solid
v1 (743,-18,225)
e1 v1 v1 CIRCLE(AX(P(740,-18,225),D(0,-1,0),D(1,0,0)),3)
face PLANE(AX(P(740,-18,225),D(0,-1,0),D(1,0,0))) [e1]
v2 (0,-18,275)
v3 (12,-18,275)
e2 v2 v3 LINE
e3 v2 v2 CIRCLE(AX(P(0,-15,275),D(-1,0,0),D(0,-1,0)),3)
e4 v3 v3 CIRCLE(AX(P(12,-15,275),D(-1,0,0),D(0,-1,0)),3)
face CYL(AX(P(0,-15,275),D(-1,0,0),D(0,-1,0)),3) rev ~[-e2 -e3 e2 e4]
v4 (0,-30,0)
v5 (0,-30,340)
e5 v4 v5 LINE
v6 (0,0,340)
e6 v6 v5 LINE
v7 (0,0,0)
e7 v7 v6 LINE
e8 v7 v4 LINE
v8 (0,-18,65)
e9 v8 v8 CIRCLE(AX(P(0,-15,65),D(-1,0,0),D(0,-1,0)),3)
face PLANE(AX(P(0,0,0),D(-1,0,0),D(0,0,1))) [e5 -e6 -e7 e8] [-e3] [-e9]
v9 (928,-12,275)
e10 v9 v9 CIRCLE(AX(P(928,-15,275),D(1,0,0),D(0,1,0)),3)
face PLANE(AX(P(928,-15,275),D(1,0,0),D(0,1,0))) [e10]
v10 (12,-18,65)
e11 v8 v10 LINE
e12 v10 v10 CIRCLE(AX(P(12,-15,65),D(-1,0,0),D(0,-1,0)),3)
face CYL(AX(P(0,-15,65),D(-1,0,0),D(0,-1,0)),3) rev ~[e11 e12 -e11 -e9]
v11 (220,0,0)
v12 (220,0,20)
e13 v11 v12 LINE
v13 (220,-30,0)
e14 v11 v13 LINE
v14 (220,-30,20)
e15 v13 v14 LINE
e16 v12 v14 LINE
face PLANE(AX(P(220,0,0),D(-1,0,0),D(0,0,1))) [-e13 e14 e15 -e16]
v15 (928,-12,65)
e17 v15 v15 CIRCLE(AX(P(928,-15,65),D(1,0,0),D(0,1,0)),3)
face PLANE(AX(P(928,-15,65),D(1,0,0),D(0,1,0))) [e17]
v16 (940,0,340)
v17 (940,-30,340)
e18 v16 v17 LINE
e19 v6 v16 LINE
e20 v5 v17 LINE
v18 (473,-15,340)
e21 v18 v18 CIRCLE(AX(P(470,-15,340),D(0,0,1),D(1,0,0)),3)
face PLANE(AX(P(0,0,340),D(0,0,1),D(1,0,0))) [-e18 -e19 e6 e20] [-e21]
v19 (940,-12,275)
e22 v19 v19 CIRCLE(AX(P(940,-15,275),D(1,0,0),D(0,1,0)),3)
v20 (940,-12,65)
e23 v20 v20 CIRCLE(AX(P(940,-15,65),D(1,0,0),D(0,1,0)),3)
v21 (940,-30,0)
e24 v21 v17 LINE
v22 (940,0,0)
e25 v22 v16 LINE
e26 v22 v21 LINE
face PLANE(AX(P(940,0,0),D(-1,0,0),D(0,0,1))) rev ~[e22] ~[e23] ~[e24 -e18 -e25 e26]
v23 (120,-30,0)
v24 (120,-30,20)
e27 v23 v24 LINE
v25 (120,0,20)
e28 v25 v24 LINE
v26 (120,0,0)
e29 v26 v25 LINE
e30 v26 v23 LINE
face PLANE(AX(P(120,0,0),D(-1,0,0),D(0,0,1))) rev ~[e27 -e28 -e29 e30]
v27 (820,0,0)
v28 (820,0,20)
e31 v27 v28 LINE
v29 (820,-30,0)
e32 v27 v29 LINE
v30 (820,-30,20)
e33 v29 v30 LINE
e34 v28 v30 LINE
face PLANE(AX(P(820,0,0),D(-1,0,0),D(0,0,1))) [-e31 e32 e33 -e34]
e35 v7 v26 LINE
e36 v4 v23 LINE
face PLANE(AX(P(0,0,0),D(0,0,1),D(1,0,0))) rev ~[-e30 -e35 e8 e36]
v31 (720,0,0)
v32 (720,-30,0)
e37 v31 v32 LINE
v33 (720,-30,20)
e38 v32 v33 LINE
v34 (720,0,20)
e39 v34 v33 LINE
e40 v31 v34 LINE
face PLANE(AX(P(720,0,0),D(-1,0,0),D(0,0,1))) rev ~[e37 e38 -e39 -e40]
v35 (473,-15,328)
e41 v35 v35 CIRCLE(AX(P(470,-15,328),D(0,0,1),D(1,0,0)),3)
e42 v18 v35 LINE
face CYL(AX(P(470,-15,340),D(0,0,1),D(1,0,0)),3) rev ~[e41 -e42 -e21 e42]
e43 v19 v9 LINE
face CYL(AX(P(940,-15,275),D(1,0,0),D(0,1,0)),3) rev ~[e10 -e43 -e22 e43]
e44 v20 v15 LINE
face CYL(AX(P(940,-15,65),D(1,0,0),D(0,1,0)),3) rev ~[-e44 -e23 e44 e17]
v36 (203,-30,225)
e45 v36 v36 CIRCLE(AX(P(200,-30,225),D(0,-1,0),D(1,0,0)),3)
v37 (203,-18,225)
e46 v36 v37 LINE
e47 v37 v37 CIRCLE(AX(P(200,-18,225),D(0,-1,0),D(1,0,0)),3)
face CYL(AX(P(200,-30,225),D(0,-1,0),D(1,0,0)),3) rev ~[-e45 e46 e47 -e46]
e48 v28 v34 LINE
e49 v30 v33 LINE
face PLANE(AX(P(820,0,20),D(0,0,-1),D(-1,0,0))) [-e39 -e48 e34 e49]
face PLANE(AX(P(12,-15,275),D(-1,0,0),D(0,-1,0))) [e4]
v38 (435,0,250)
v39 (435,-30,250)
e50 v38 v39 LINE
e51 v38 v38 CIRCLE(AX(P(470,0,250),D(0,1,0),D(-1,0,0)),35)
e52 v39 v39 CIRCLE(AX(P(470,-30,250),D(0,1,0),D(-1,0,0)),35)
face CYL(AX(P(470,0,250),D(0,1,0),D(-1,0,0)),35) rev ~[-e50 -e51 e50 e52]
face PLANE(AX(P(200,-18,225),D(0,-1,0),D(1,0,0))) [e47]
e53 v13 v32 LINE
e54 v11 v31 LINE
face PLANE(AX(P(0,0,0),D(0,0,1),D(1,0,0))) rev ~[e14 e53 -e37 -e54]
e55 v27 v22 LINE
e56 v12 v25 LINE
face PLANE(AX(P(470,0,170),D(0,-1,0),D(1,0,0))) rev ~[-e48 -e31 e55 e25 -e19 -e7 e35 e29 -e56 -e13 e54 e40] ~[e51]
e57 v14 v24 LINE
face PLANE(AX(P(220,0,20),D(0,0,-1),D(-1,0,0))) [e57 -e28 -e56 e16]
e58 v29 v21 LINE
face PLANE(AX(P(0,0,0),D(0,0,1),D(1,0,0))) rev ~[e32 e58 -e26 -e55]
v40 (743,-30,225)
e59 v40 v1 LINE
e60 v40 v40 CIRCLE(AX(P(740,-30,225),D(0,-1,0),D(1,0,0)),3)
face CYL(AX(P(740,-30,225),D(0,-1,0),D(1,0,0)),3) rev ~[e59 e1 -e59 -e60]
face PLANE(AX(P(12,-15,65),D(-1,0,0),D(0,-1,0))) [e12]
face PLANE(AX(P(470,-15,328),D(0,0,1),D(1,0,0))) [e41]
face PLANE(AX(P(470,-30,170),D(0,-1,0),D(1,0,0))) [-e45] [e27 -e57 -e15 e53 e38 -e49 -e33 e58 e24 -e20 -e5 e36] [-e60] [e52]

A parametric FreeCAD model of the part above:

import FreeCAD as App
import Part
import Sketcher

V = App.Vector

doc = App.newDocument("Part")
body = doc.addObject("PartDesign::Body", "Body")

# Sketch on XZ plane
sketch1 = doc.addObject("Sketcher::SketchObject", "Sketch")
body.addObject(sketch1)
sketch1.AttachmentSupport = (doc.XZ_Plane, [""])
sketch1.MapMode = "FlatFace"
sketch1.addGeometry(Part.LineSegment(V(0, 340, 0), V(0, 0, 0)), False)
sketch1.addGeometry(Part.LineSegment(V(0, 0, 0), V(940, 0, 0)), False)
sketch1.addGeometry(Part.LineSegment(V(940, 0, 0), V(940, 340, 0)), False)
sketch1.addGeometry(Part.LineSegment(V(940, 340, 0), V(0, 340, 0)), False)
sketch1.addConstraint(Sketcher.Constraint("Coincident", 0, 2, 1, 1))
sketch1.addConstraint(Sketcher.Constraint("Coincident", 1, 2, 2, 1))
sketch1.addConstraint(Sketcher.Constraint("Coincident", 2, 2, 3, 1))
sketch1.addConstraint(Sketcher.Constraint("Coincident", 3, 2, 0, 1))
sketch1.addConstraint(Sketcher.Constraint("Vertical", 0))
sketch1.addConstraint(Sketcher.Constraint("Horizontal", 1))
sketch1.addConstraint(Sketcher.Constraint("Vertical", 2))
sketch1.addConstraint(Sketcher.Constraint("Horizontal", 3))
sketch1.addConstraint(Sketcher.Constraint("Coincident", 0, 2, -1, 1))
sketch1.addConstraint(Sketcher.Constraint("DistanceX", 1, 1, 1, 2, 940.0))
sketch1.addConstraint(Sketcher.Constraint("DistanceY", 0, 2, 0, 1, 340.0))
pad1 = doc.addObject("PartDesign::Pad", "Pad")
body.addObject(pad1)
pad1.Profile = sketch1
pad1.Length = 30

# Sketch on XY plane
sketch2 = doc.addObject("Sketcher::SketchObject", "Sketch001")
body.addObject(sketch2)
sketch2.AttachmentSupport = (doc.XY_Plane, [""])
sketch2.MapMode = "FlatFace"
sketch2.AttachmentOffset = App.Placement(V(0, 0, 340), App.Rotation())
sketch2.addGeometry(Part.Circle(V(470, -15, 0), V(0, 0, 1), 3), False)
sketch2.addConstraint(Sketcher.Constraint("Diameter", 0, 6.0))
sketch2.addConstraint(Sketcher.Constraint("DistanceX", -1, 1, 0, 3, 470.0))
sketch2.addConstraint(Sketcher.Constraint("DistanceY", 0, 3, -1, 1, 15.0))
pocket1 = doc.addObject("PartDesign::Pocket", "Pocket")
body.addObject(pocket1)
pocket1.Profile = sketch2
pocket1.Length = 12

# Sketch on XZ plane
sketch3 = doc.addObject("Sketcher::SketchObject", "Sketch002")
body.addObject(sketch3)
sketch3.AttachmentSupport = (doc.XZ_Plane, [""])
sketch3.MapMode = "FlatFace"
sketch3.addGeometry(Part.LineSegment(V(820, 20, 0), V(820, 0, 0)), False)
sketch3.addGeometry(Part.LineSegment(V(820, 0, 0), V(720, 0, 0)), False)
sketch3.addGeometry(Part.LineSegment(V(720, 0, 0), V(720, 20, 0)), False)
sketch3.addGeometry(Part.LineSegment(V(720, 20, 0), V(820, 20, 0)), False)
sketch3.addConstraint(Sketcher.Constraint("Coincident", 0, 2, 1, 1))
sketch3.addConstraint(Sketcher.Constraint("Coincident", 1, 2, 2, 1))
sketch3.addConstraint(Sketcher.Constraint("Coincident", 2, 2, 3, 1))
sketch3.addConstraint(Sketcher.Constraint("Coincident", 3, 2, 0, 1))
sketch3.addConstraint(Sketcher.Constraint("Vertical", 0))
sketch3.addConstraint(Sketcher.Constraint("Horizontal", 1))
sketch3.addConstraint(Sketcher.Constraint("Vertical", 2))
sketch3.addConstraint(Sketcher.Constraint("Horizontal", 3))
sketch3.addConstraint(Sketcher.Constraint("PointOnObject", 0, 2, -1))
sketch3.addConstraint(Sketcher.Constraint("DistanceX", 1, 2, 1, 1, 100.0))
sketch3.addConstraint(Sketcher.Constraint("DistanceY", 0, 2, 0, 1, 20.0))
sketch3.addConstraint(Sketcher.Constraint("DistanceX", -1, 1, 0, 2, 820.0))
pocket2 = doc.addObject("PartDesign::Pocket", "Pocket001")
body.addObject(pocket2)
pocket2.Profile = sketch3
pocket2.Length = 30
pocket2.Reversed = True

# Sketch on XZ plane
sketch4 = doc.addObject("Sketcher::SketchObject", "Sketch003")
body.addObject(sketch4)
sketch4.AttachmentSupport = (doc.XZ_Plane, [""])
sketch4.MapMode = "FlatFace"
sketch4.addGeometry(Part.LineSegment(V(220, 20, 0), V(220, 0, 0)), False)
sketch4.addGeometry(Part.LineSegment(V(220, 0, 0), V(120, 0, 0)), False)
sketch4.addGeometry(Part.LineSegment(V(120, 0, 0), V(120, 20, 0)), False)
sketch4.addGeometry(Part.LineSegment(V(120, 20, 0), V(220, 20, 0)), False)
sketch4.addConstraint(Sketcher.Constraint("Coincident", 0, 2, 1, 1))
sketch4.addConstraint(Sketcher.Constraint("Coincident", 1, 2, 2, 1))
sketch4.addConstraint(Sketcher.Constraint("Coincident", 2, 2, 3, 1))
sketch4.addConstraint(Sketcher.Constraint("Coincident", 3, 2, 0, 1))
sketch4.addConstraint(Sketcher.Constraint("Vertical", 0))
sketch4.addConstraint(Sketcher.Constraint("Horizontal", 1))
sketch4.addConstraint(Sketcher.Constraint("Vertical", 2))
sketch4.addConstraint(Sketcher.Constraint("Horizontal", 3))
sketch4.addConstraint(Sketcher.Constraint("PointOnObject", 0, 2, -1))
sketch4.addConstraint(Sketcher.Constraint("DistanceX", 1, 2, 1, 1, 100.0))
sketch4.addConstraint(Sketcher.Constraint("DistanceY", 0, 2, 0, 1, 20.0))
sketch4.addConstraint(Sketcher.Constraint("DistanceX", -1, 1, 0, 2, 220.0))
pocket3 = doc.addObject("PartDesign::Pocket", "Pocket002")
body.addObject(pocket3)
pocket3.Profile = sketch4
pocket3.Length = 30
pocket3.Reversed = True

# Sketch on XZ plane
sketch5 = doc.addObject("Sketcher::SketchObject", "Sketch004")
body.addObject(sketch5)
sketch5.AttachmentSupport = (doc.XZ_Plane, [""])
sketch5.MapMode = "FlatFace"
sketch5.addGeometry(Part.Circle(V(470, 250, 0), V(0, 0, 1), 35), False)
sketch5.addConstraint(Sketcher.Constraint("Diameter", 0, 70.0))
sketch5.addConstraint(Sketcher.Constraint("DistanceX", -1, 1, 0, 3, 470.0))
sketch5.addConstraint(Sketcher.Constraint("DistanceY", -1, 1, 0, 3, 250.0))
pocket4 = doc.addObject("PartDesign::Pocket", "Pocket003")
body.addObject(pocket4)
pocket4.Profile = sketch5
pocket4.Length = 30
pocket4.Reversed = True

# Sketch on YZ plane
sketch6 = doc.addObject("Sketcher::SketchObject", "Sketch005")
body.addObject(sketch6)
sketch6.AttachmentSupport = (doc.YZ_Plane, [""])
sketch6.MapMode = "FlatFace"
sketch6.AttachmentOffset = App.Placement(V(0, 0, 940), App.Rotation())
sketch6.addGeometry(Part.Circle(V(-15, 275, 0), V(0, 0, 1), 3), False)
sketch6.addGeometry(Part.Circle(V(-15, 65, 0), V(0, 0, 1), 3), False)
sketch6.addConstraint(Sketcher.Constraint("Equal", 0, 1))
sketch6.addConstraint(Sketcher.Constraint("Vertical", 0, 3, 1, 3))
sketch6.addConstraint(Sketcher.Constraint("Diameter", 0, 6.0))
sketch6.addConstraint(Sketcher.Constraint("DistanceX", 0, 3, -1, 1, 15.0))
sketch6.addConstraint(Sketcher.Constraint("DistanceY", -1, 1, 0, 3, 275.0))
sketch6.addConstraint(Sketcher.Constraint("DistanceY", -1, 1, 1, 3, 65.0))
pocket5 = doc.addObject("PartDesign::Pocket", "Pocket004")
body.addObject(pocket5)
pocket5.Profile = sketch6
pocket5.Length = 12

# Sketch on YZ plane
sketch7 = doc.addObject("Sketcher::SketchObject", "Sketch006")
body.addObject(sketch7)
sketch7.AttachmentSupport = (doc.YZ_Plane, [""])
sketch7.MapMode = "FlatFace"
sketch7.addGeometry(Part.Circle(V(-15, 275, 0), V(0, 0, 1), 3), False)
sketch7.addGeometry(Part.Circle(V(-15, 65, 0), V(0, 0, 1), 3), False)
sketch7.addConstraint(Sketcher.Constraint("Equal", 0, 1))
sketch7.addConstraint(Sketcher.Constraint("Vertical", 0, 3, 1, 3))
sketch7.addConstraint(Sketcher.Constraint("Diameter", 0, 6.0))
sketch7.addConstraint(Sketcher.Constraint("DistanceX", 0, 3, -1, 1, 15.0))
sketch7.addConstraint(Sketcher.Constraint("DistanceY", -1, 1, 0, 3, 275.0))
sketch7.addConstraint(Sketcher.Constraint("DistanceY", -1, 1, 1, 3, 65.0))
pocket6 = doc.addObject("PartDesign::Pocket", "Pocket005")
body.addObject(pocket6)
pocket6.Profile = sketch7
pocket6.Length = 12
pocket6.Reversed = True

# Sketch on XZ plane
sketch8 = doc.addObject("Sketcher::SketchObject", "Sketch007")
body.addObject(sketch8)
sketch8.AttachmentSupport = (doc.XZ_Plane, [""])
sketch8.MapMode = "FlatFace"
sketch8.AttachmentOffset = App.Placement(V(0, 0, 30), App.Rotation())
sketch8.addGeometry(Part.Circle(V(740, 225, 0), V(0, 0, 1), 3), False)
sketch8.addGeometry(Part.Circle(V(200, 225, 0), V(0, 0, 1), 3), False)
sketch8.addConstraint(Sketcher.Constraint("Equal", 0, 1))
sketch8.addConstraint(Sketcher.Constraint("Horizontal", 0, 3, 1, 3))
sketch8.addConstraint(Sketcher.Constraint("Diameter", 0, 6.0))
sketch8.addConstraint(Sketcher.Constraint("DistanceX", -1, 1, 0, 3, 740.0))
sketch8.addConstraint(Sketcher.Constraint("DistanceY", -1, 1, 0, 3, 225.0))
sketch8.addConstraint(Sketcher.Constraint("DistanceX", -1, 1, 1, 3, 200.0))
pocket7 = doc.addObject("PartDesign::Pocket", "Pocket006")
body.addObject(pocket7)
pocket7.Profile = sketch8
pocket7.Length = 12

doc.recompute()
